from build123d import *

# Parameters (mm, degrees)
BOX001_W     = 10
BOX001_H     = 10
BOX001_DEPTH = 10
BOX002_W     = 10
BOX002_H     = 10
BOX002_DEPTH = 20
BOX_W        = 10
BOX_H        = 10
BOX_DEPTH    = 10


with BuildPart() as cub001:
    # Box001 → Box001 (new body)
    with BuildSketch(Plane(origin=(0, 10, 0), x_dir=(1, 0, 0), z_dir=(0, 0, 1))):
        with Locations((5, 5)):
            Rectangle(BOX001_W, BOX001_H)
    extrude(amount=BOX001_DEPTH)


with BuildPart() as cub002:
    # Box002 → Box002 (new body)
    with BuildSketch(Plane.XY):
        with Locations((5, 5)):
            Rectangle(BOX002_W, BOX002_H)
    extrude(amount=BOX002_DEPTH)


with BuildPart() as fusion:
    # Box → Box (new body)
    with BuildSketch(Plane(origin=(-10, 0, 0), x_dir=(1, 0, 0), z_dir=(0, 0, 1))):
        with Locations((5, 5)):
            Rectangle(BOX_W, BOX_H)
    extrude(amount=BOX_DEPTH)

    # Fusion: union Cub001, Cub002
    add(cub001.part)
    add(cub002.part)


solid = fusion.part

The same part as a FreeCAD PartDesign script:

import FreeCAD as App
import Part
import Sketcher
from FreeCAD import Vector
Q = App.Units.Quantity


def add_polygon(sketch, points):
    """Adds a closed chain of lines whose ends are joined by coincident constraints."""
    first, n = sketch.GeometryCount, len(points)
    for a, b in zip(points, points[1:] + points[:1]):
        sketch.addGeometry(Part.LineSegment(App.Vector(*a, 0), App.Vector(*b, 0)), False)
    for i in range(n):
        sketch.addConstraint(Sketcher.Constraint("Coincident", first + i, 2, first + (i + 1) % n, 1))

doc = App.newDocument("Part")
params = doc.addObject("Spreadsheet::Sheet", "Params")
for row, (alias, value) in enumerate([
    ("sketch1_width", "10 mm"),
    ("pad1_length", "10 mm"),
    ("sketch2_width", "10 mm"),
    ("pad2_length", "20 mm"),
    ("sketch3_width", "10 mm"),
    ("pad3_length", "10 mm"),
], start=1):
    params.set(f"A{row}", alias)
    params.set(f"B{row}", "=" + value)
    params.setAlias(f"B{row}", alias)

body = doc.addObject("PartDesign::Body", "Body")

# Sketch on XY plane
sketch1 = body.newObject("Sketcher::SketchObject", "Sketch")
sketch1.AttachmentSupport = (doc.getObject("XY_Plane"), [""])
sketch1.MapMode = "FlatFace"
add_polygon(sketch1, [(0, 20), (0, 10), (10, 10), (10, 20)])  # lines 0-3
sketch1.addConstraint([
    Sketcher.Constraint("Vertical", 0),
    Sketcher.Constraint("Horizontal", 1),
    Sketcher.Constraint("Vertical", 2),
    Sketcher.Constraint("Horizontal", 3),
    Sketcher.Constraint("PointOnObject", 0, 2, -2),
    Sketcher.Constraint("Equal", 3, 0),
    Sketcher.Constraint("DistanceX", 1, 1, 1, 2, Q("10 mm")),
    Sketcher.Constraint("DistanceY", -1, 1, 0, 2, Q("10 mm")),
])
sketch1.setExpression("Constraints[10]", "Params.sketch1_width")
pad1 = body.newObject("PartDesign::Pad", "Pad")
pad1.Profile = sketch1
pad1.setExpression("Length", "Params.pad1_length")
body2 = doc.addObject("PartDesign::Body", "Body001")

# Sketch on XY plane
sketch2 = body2.newObject("Sketcher::SketchObject", "Sketch001")
sketch2.AttachmentSupport = (doc.getObject("XY_Plane001"), [""])
sketch2.MapMode = "FlatFace"
add_polygon(sketch2, [(0, 10), (0, 0), (10, 0), (10, 10)])  # lines 0-3
sketch2.addConstraint([
    Sketcher.Constraint("Vertical", 0),
    Sketcher.Constraint("Horizontal", 1),
    Sketcher.Constraint("Vertical", 2),
    Sketcher.Constraint("Horizontal", 3),
    Sketcher.Constraint("Coincident", 0, 2, -1, 1),
    Sketcher.Constraint("Equal", 3, 0),
    Sketcher.Constraint("DistanceX", 1, 1, 1, 2, Q("10 mm")),
])
sketch2.setExpression("Constraints[10]", "Params.sketch2_width")
pad2 = body2.newObject("PartDesign::Pad", "Pad001")
pad2.Profile = sketch2
pad2.setExpression("Length", "Params.pad2_length")
body3 = doc.addObject("PartDesign::Body", "Body002")
body3.AllowCompound = True

# Sketch on XY plane
sketch3 = body3.newObject("Sketcher::SketchObject", "Sketch002")
sketch3.AttachmentSupport = (doc.getObject("XY_Plane002"), [""])
sketch3.MapMode = "FlatFace"
add_polygon(sketch3, [(-10, 10), (-10, 0), (0, 0), (0, 10)])  # lines 0-3
sketch3.addConstraint([
    Sketcher.Constraint("Vertical", 0),
    Sketcher.Constraint("Horizontal", 1),
    Sketcher.Constraint("Vertical", 2),
    Sketcher.Constraint("Horizontal", 3),
    Sketcher.Constraint("Coincident", 1, 2, -1, 1),
    Sketcher.Constraint("Equal", 3, 0),
    Sketcher.Constraint("DistanceX", 1, 1, 1, 2, Q("10 mm")),
])
sketch3.setExpression("Constraints[10]", "Params.sketch3_width")
pad3 = body3.newObject("PartDesign::Pad", "Pad002")
pad3.Profile = sketch3
pad3.setExpression("Length", "Params.pad3_length")
doc.recompute()

boolean = body3.newObject("PartDesign::Boolean", "Boolean")
boolean.Type = "Fuse"
boolean.addObjects([body])
doc.recompute()

boolean2 = body3.newObject("PartDesign::Boolean", "Boolean001")
boolean2.Type = "Fuse"
boolean2.addObjects([body2])

doc.recompute()
